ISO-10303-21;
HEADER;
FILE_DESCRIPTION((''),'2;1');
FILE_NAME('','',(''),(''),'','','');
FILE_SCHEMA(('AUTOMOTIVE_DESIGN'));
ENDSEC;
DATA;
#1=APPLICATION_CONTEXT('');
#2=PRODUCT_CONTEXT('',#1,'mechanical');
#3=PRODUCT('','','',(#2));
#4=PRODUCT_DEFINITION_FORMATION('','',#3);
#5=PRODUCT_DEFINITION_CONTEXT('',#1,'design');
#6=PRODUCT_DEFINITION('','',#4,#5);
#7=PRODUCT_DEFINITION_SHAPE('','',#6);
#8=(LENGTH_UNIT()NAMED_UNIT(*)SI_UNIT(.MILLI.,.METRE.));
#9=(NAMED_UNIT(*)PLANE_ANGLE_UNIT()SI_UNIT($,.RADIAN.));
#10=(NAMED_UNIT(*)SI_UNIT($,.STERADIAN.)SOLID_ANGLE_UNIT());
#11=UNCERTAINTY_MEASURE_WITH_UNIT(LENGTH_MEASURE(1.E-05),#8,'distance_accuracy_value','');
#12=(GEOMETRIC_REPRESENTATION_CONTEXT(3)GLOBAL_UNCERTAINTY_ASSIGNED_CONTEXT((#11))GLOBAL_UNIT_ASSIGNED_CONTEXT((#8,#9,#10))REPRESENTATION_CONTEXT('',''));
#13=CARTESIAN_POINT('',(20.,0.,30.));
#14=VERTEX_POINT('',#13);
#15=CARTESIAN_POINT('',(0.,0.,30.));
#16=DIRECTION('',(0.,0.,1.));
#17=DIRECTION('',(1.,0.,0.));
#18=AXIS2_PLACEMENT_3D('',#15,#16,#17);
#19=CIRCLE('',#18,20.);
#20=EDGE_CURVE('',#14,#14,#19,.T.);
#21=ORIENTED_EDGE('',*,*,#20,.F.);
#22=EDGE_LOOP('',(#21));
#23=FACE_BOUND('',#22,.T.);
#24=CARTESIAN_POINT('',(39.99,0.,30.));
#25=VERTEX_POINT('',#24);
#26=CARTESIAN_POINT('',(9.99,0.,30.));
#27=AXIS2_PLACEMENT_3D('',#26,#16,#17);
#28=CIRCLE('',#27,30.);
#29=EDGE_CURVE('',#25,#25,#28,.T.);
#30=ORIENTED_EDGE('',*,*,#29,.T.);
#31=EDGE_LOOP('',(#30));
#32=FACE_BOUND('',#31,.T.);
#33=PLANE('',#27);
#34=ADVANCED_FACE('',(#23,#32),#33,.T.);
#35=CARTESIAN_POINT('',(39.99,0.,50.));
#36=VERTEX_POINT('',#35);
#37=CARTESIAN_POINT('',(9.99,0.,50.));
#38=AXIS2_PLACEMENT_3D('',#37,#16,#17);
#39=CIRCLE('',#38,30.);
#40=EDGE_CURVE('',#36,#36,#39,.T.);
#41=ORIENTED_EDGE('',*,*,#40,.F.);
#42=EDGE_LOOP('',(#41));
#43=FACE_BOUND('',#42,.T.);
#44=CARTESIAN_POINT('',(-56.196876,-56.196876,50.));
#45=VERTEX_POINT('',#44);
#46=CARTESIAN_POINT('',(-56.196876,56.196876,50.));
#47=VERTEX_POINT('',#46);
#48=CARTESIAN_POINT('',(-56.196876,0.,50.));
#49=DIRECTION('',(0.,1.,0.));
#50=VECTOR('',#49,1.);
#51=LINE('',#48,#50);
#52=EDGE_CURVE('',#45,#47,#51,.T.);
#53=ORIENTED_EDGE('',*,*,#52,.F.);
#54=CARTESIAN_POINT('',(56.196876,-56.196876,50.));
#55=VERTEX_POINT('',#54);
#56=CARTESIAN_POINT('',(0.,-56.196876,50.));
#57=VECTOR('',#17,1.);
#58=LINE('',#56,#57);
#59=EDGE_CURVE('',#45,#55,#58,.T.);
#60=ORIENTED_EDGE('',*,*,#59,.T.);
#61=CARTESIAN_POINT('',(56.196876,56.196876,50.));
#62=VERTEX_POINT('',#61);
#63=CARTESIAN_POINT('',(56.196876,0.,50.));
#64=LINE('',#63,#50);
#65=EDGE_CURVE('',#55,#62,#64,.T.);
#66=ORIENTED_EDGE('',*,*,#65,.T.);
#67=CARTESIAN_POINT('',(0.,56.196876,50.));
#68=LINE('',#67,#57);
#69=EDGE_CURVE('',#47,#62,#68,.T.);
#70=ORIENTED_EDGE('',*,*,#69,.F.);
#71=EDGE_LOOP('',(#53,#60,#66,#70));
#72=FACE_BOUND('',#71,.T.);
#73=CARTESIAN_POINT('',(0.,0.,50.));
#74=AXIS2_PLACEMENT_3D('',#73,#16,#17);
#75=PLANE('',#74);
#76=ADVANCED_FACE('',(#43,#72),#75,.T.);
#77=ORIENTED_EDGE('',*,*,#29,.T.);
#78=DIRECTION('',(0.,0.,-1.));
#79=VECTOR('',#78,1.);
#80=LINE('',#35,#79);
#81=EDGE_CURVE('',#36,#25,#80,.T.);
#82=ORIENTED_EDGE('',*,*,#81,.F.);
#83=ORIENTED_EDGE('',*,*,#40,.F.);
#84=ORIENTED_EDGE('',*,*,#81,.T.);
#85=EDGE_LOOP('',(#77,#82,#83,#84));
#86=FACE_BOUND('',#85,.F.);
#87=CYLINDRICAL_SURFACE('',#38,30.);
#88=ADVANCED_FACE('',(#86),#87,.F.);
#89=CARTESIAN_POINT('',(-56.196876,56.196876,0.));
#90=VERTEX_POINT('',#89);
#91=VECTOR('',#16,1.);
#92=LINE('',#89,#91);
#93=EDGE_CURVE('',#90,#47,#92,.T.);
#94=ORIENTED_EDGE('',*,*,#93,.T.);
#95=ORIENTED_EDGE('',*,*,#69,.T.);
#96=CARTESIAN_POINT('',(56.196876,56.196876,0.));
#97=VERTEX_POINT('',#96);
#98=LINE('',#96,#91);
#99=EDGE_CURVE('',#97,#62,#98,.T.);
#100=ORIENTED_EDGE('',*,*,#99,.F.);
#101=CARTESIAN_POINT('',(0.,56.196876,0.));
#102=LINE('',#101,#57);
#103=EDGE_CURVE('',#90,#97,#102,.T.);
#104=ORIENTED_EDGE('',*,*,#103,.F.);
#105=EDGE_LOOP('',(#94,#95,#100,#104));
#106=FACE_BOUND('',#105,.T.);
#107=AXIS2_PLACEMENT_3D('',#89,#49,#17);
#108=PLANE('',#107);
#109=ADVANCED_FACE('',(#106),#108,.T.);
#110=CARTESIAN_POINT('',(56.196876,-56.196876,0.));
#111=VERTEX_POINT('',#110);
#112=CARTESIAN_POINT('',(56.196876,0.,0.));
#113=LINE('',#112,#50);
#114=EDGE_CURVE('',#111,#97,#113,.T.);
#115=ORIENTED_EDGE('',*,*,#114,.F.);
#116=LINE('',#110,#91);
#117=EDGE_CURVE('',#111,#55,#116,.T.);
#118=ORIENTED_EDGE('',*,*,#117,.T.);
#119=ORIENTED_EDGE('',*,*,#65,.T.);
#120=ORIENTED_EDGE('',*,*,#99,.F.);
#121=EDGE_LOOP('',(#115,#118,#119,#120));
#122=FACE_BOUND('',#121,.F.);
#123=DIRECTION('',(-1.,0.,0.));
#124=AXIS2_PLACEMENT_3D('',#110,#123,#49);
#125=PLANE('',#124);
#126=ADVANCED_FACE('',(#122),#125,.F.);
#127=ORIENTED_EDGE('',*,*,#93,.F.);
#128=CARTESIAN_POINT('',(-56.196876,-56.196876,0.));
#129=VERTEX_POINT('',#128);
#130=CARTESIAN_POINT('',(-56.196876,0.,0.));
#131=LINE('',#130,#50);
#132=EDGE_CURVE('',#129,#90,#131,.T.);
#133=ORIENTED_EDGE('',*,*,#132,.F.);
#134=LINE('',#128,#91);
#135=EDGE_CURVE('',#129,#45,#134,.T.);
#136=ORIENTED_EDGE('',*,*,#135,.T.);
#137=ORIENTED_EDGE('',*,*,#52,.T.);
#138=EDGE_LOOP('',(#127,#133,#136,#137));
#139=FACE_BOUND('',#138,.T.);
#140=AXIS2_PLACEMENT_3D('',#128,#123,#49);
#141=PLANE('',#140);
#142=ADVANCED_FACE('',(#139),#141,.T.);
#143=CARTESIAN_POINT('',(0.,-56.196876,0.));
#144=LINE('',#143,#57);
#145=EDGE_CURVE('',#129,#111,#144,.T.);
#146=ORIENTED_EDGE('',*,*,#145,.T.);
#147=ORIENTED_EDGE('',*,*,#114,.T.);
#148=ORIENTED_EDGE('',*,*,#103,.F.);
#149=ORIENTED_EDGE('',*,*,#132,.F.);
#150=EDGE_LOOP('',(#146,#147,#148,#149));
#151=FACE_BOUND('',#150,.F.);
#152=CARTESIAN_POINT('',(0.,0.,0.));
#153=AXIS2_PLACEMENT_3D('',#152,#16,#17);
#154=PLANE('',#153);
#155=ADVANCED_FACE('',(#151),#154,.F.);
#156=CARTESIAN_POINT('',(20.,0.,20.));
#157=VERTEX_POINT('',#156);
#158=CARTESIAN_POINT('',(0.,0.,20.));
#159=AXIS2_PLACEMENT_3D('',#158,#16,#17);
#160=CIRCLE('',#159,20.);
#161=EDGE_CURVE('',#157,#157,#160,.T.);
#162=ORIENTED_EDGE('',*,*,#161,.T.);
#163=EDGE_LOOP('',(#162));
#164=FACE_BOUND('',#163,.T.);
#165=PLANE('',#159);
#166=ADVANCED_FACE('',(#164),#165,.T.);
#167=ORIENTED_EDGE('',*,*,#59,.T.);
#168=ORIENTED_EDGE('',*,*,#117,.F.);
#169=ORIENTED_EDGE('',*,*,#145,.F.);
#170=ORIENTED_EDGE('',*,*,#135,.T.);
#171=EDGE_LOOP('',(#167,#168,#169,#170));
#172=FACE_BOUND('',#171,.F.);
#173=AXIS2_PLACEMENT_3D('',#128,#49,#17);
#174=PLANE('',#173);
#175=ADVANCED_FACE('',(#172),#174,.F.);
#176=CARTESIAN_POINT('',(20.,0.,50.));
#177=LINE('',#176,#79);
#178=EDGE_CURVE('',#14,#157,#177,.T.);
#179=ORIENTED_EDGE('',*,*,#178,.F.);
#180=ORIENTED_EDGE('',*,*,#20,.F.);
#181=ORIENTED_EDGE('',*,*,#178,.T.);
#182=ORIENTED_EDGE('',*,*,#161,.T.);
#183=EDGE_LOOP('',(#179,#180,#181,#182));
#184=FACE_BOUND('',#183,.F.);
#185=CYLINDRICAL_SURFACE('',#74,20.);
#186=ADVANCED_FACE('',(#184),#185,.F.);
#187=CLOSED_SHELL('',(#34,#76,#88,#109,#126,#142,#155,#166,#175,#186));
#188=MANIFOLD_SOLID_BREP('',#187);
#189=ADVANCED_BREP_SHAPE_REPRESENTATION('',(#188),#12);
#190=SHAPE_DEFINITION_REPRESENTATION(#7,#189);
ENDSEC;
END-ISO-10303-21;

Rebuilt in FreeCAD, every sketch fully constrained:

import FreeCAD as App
import Part
import Sketcher
Q = App.Units.Quantity

doc = App.newDocument("Part")
body = doc.addObject("PartDesign::Body", "Body")

sketch1 = body.newObject("Sketcher::SketchObject", "Sketch")
sketch1.AttachmentSupport = (doc.getObject("XY_Plane"), [""])
sketch1.MapMode = "FlatFace"
sketch1.addGeometry([
    Part.LineSegment(App.Vector(-56, 56, 0), App.Vector(-56, -56, 0)),
    Part.LineSegment(App.Vector(-56, -56, 0), App.Vector(56, -56, 0)),
    Part.LineSegment(App.Vector(56, -56, 0), App.Vector(56, 56, 0)),
    Part.LineSegment(App.Vector(56, 56, 0), App.Vector(-56, 56, 0)),
], False)
sketch1.addConstraint([
    Sketcher.Constraint("Coincident", 0, 2, 1, 1),
    Sketcher.Constraint("Coincident", 1, 2, 2, 1),
    Sketcher.Constraint("Coincident", 2, 2, 3, 1),
    Sketcher.Constraint("Coincident", 3, 2, 0, 1),
    Sketcher.Constraint("Vertical", 0),
    Sketcher.Constraint("Horizontal", 1),
    Sketcher.Constraint("Vertical", 2),
    Sketcher.Constraint("Horizontal", 3),
    Sketcher.Constraint("Symmetric", 0, 2, 2, 2, -1, 1),
    Sketcher.Constraint("Equal", 3, 0),
    Sketcher.Constraint("DistanceX", 1, 1, 1, 2, Q("112.393752 mm")),
])
pad1 = body.newObject("PartDesign::Pad", "Pad")
pad1.Profile = sketch1
pad1.Length = 50

sketch2 = body.newObject("Sketcher::SketchObject", "Sketch001")
sketch2.AttachmentSupport = (doc.getObject("XY_Plane"), [""])
sketch2.MapMode = "FlatFace"
sketch2.AttachmentOffset = App.Placement(App.Vector(0, 0, 50), App.Rotation())
sketch2.addGeometry(Part.Circle(App.Vector(0, 0, 0), App.Vector(0, 0, 1), 20), False)
sketch2.addConstraint([
    Sketcher.Constraint("Coincident", 0, 3, -1, 1),
    Sketcher.Constraint("Diameter", 0, Q("40 mm")),
])
pocket1 = body.newObject("PartDesign::Pocket", "Pocket")
pocket1.Profile = sketch2
pocket1.Length = 30

sketch3 = body.newObject("Sketcher::SketchObject", "Sketch002")
sketch3.AttachmentSupport = (doc.getObject("XY_Plane"), [""])
sketch3.MapMode = "FlatFace"
sketch3.AttachmentOffset = App.Placement(App.Vector(0, 0, 50), App.Rotation())
sketch3.addGeometry([
    Part.Circle(App.Vector(10, 0, 0), App.Vector(0, 0, 1), 30),
    Part.Circle(App.Vector(0, 0, 0), App.Vector(0, 0, 1), 20),
], False)
sketch3.addConstraint([
    Sketcher.Constraint("Coincident", 1, 3, -1, 1),
    Sketcher.Constraint("PointOnObject", 0, 3, -1),
    Sketcher.Constraint("Diameter", 0, Q("60 mm")),
    Sketcher.Constraint("Diameter", 1, Q("40 mm")),
    Sketcher.Constraint("DistanceX", -1, 1, 0, 3, Q("9.99 mm")),
])
pocket2 = body.newObject("PartDesign::Pocket", "Pocket001")
pocket2.Profile = sketch3
pocket2.Length = 20

doc.recompute()
